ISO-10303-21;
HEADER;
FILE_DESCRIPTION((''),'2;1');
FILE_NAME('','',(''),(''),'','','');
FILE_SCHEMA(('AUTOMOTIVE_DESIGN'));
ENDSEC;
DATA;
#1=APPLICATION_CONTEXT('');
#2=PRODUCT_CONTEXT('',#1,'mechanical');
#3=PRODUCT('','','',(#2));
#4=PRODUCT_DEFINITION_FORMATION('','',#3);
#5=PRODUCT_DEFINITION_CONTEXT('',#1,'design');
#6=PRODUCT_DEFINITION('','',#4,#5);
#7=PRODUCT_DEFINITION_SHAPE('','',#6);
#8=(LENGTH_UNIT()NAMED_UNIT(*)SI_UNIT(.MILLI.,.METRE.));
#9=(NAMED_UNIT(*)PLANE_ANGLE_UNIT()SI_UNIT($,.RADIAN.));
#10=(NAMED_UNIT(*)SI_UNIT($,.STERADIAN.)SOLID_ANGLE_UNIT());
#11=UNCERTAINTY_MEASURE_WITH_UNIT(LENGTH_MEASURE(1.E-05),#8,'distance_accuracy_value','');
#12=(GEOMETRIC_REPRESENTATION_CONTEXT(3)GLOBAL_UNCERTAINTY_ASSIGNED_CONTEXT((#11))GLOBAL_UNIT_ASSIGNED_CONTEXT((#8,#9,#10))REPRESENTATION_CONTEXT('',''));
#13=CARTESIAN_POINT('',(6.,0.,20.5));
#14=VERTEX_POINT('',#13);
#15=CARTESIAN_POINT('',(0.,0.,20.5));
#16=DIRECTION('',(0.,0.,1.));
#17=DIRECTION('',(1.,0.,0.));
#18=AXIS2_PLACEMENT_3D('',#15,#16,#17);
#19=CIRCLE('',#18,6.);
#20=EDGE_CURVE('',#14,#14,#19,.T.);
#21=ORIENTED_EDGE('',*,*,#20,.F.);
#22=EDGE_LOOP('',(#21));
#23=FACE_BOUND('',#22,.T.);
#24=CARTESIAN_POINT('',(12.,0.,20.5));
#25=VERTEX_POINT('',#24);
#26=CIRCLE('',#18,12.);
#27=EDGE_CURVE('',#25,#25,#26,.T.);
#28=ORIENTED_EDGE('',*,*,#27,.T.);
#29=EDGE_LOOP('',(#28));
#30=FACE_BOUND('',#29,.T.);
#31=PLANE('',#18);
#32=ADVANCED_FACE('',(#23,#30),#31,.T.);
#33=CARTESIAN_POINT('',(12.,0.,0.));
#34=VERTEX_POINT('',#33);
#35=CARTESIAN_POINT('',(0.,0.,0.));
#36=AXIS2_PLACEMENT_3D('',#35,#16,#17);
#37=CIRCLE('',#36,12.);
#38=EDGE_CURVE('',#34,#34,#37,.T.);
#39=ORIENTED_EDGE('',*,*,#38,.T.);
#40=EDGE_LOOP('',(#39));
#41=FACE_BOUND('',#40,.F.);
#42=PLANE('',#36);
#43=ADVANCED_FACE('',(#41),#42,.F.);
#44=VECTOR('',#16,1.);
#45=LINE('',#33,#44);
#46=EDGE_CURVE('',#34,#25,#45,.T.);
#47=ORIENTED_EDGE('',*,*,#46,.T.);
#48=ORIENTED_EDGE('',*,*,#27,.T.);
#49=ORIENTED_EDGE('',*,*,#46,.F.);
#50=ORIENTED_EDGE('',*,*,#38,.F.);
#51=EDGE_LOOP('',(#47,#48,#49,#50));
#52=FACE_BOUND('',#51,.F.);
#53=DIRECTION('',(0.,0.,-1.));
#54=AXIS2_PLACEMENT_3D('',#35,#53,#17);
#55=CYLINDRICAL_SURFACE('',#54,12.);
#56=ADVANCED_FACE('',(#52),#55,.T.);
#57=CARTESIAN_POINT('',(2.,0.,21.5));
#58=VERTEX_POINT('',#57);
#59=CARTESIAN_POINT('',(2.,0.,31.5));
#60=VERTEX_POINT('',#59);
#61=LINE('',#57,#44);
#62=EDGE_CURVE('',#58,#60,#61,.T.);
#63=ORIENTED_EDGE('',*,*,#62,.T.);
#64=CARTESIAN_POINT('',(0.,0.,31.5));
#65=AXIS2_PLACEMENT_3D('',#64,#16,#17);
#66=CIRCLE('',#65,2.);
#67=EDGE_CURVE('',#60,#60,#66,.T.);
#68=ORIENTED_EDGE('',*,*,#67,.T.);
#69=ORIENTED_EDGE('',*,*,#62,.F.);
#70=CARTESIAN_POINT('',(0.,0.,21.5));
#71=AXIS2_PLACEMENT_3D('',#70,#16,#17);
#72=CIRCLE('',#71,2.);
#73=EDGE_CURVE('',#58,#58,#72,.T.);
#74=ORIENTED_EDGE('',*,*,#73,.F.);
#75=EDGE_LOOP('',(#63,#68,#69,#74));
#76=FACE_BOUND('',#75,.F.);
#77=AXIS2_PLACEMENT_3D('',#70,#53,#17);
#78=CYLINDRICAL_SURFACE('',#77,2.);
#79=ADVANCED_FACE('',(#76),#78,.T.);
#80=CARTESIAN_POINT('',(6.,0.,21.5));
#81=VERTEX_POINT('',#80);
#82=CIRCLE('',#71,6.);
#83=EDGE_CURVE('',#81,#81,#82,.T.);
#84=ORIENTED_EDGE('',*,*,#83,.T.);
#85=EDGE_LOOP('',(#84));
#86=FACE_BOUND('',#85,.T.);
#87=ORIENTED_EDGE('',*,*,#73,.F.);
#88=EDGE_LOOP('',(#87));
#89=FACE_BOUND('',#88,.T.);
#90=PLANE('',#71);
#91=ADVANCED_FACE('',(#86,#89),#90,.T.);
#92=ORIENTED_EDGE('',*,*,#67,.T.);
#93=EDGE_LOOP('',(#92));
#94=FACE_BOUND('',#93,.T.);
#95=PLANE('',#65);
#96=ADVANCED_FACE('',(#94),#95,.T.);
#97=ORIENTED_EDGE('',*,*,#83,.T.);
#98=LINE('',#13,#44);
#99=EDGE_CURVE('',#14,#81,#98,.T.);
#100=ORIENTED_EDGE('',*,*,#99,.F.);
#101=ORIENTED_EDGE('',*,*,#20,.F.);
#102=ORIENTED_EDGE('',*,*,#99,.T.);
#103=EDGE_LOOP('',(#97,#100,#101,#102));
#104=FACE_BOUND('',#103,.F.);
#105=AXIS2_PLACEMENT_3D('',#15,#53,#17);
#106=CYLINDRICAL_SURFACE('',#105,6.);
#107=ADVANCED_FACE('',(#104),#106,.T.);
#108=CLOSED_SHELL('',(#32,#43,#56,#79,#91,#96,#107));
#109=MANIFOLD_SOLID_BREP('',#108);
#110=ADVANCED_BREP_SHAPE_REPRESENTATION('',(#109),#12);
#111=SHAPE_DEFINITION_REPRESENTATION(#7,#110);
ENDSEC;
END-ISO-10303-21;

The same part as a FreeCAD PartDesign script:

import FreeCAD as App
import Part
import Sketcher

doc = App.newDocument("Part")
params = doc.addObject("Spreadsheet::Sheet", "Params")
for row, (alias, value) in enumerate([
    ("sketch1_diameter", "24 mm"),
    ("pad1_length", "20.5 mm"),
    ("sketch2_diameter", "12 mm"),
    ("pad2_length", "1 mm"),
    ("sketch3_diameter", "4 mm"),
    ("pad3_length", "10 mm"),
], start=1):
    params.set(f"A{row}", alias)
    params.set(f"B{row}", "=" + value)
    params.setAlias(f"B{row}", alias)

body = doc.addObject("PartDesign::Body", "Body")

# Sketch on XY plane
sketch1 = doc.addObject("Sketcher::SketchObject", "Sketch")
body.addObject(sketch1)
sketch1.AttachmentSupport = (doc.XY_Plane, [""])
sketch1.MapMode = "FlatFace"
sketch1.addGeometry(Part.Circle(App.Vector(0, 0, 0), App.Vector(0, 0, 1), 12), False)
sketch1.addConstraint(Sketcher.Constraint("Coincident", 0, 3, -1, 1))
sketch1.addConstraint(Sketcher.Constraint("Diameter", 0, 24.0))
sketch1.setExpression("Constraints[1]", "Params.sketch1_diameter")
pad1 = doc.addObject("PartDesign::Pad", "Pad")
body.addObject(pad1)
pad1.Profile = sketch1
pad1.setExpression("Length", "Params.pad1_length")

# Sketch on XY plane
sketch2 = doc.addObject("Sketcher::SketchObject", "Sketch001")
body.addObject(sketch2)
sketch2.AttachmentSupport = (doc.XY_Plane, [""])
sketch2.MapMode = "FlatFace"
sketch2.AttachmentOffset = App.Placement(App.Vector(0, 0, 20.5), App.Rotation())
sketch2.addGeometry(Part.Circle(App.Vector(0, 0, 0), App.Vector(0, 0, 1), 6), False)
sketch2.addConstraint(Sketcher.Constraint("Coincident", 0, 3, -1, 1))
sketch2.addConstraint(Sketcher.Constraint("Diameter", 0, 12.0))
sketch2.setExpression("Constraints[1]", "Params.sketch2_diameter")
pad2 = doc.addObject("PartDesign::Pad", "Pad001")
body.addObject(pad2)
pad2.Profile = sketch2
pad2.setExpression("Length", "Params.pad2_length")

# Sketch on XY plane
sketch3 = doc.addObject("Sketcher::SketchObject", "Sketch002")
body.addObject(sketch3)
sketch3.AttachmentSupport = (doc.XY_Plane, [""])
sketch3.MapMode = "FlatFace"
sketch3.AttachmentOffset = App.Placement(App.Vector(0, 0, 21.5), App.Rotation())
sketch3.addGeometry(Part.Circle(App.Vector(0, 0, 0), App.Vector(0, 0, 1), 2), False)
sketch3.addConstraint(Sketcher.Constraint("Coincident", 0, 3, -1, 1))
sketch3.addConstraint(Sketcher.Constraint("Diameter", 0, 4.0))
sketch3.setExpression("Constraints[1]", "Params.sketch3_diameter")
pad3 = doc.addObject("PartDesign::Pad", "Pad002")
body.addObject(pad3)
pad3.Profile = sketch3
pad3.setExpression("Length", "Params.pad3_length")

doc.recompute()
